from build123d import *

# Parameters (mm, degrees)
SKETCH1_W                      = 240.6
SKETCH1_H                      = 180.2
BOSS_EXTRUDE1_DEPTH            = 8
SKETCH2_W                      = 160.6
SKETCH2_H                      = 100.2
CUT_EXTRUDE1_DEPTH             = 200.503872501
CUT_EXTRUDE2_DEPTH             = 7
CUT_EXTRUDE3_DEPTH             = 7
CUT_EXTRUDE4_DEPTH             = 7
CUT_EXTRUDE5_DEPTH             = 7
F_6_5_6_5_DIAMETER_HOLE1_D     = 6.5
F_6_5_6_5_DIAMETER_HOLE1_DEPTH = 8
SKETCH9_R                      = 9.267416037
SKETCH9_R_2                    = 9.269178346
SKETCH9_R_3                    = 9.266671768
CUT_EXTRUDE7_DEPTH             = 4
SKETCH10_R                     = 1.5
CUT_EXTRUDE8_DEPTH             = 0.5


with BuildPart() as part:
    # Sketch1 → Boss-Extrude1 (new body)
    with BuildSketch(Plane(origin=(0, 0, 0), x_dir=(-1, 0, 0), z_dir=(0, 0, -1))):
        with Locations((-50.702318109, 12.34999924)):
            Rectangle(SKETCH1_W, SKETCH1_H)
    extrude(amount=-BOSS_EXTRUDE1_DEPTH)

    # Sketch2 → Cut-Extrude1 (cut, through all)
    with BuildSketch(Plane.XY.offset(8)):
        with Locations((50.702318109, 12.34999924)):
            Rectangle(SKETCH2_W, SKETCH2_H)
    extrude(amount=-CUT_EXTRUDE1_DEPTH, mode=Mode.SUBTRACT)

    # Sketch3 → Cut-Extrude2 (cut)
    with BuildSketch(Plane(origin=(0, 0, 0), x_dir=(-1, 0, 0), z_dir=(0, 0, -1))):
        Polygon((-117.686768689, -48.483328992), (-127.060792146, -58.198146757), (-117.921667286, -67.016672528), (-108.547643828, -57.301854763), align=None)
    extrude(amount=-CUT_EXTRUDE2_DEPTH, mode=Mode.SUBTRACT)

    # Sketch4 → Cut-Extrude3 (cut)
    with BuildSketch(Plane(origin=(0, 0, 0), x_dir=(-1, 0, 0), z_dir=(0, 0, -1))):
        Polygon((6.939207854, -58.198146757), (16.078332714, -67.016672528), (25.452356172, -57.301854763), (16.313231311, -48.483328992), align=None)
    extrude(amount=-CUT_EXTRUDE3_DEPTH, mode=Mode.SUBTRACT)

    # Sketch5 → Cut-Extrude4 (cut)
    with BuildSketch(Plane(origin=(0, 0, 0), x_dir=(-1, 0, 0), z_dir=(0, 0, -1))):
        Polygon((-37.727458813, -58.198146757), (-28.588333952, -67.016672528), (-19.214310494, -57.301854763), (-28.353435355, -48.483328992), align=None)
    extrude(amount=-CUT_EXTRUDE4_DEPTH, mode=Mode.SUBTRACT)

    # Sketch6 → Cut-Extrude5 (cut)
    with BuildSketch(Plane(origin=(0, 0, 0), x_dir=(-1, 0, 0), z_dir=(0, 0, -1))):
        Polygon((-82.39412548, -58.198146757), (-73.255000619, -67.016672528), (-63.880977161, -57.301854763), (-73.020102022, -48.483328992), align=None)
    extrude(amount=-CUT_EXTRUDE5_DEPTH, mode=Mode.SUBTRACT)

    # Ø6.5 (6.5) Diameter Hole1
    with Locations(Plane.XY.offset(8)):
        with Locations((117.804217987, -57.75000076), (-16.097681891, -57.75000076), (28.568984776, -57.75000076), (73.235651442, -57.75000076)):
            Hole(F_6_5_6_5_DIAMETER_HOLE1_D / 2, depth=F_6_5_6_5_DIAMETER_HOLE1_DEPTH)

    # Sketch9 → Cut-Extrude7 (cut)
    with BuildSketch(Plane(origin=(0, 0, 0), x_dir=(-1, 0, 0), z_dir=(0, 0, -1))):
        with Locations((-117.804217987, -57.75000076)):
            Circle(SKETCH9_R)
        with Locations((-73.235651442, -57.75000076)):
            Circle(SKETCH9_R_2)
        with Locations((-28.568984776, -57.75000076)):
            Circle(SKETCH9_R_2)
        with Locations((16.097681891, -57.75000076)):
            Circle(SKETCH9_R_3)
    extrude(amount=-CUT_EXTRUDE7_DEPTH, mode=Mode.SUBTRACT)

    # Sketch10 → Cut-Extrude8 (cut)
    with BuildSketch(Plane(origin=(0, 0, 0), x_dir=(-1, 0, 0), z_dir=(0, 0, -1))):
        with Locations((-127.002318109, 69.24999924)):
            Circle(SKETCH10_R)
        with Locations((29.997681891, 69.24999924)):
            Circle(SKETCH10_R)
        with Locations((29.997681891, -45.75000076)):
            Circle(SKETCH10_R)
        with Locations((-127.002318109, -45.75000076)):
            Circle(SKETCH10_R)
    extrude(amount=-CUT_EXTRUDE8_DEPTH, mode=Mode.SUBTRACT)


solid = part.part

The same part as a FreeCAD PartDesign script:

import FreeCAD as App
import Part
import Sketcher

V = App.Vector


def add_polygon(sketch, points):
    """Adds a closed chain of lines whose ends are joined by coincident constraints."""
    first, n = sketch.GeometryCount, len(points)
    for a, b in zip(points, points[1:] + points[:1]):
        sketch.addGeometry(Part.LineSegment(App.Vector(*a, 0), App.Vector(*b, 0)), False)
    for i in range(n):
        sketch.addConstraint(Sketcher.Constraint("Coincident", first + i, 2, first + (i + 1) % n, 1))

doc = App.newDocument("Part")
body = doc.addObject("PartDesign::Body", "Body")

sketch1 = body.newObject("Sketcher::SketchObject", "Sketch")
sketch1.AttachmentSupport = (doc.getObject("XY_Plane"), [""])
sketch1.MapMode = "FlatFace"
add_polygon(sketch1, [(171.002318, 102.449999), (171.002318, -77.750001), (-69.597682, -77.750001), (-69.597682, 102.449999)])
sketch1.addConstraint(Sketcher.Constraint("Vertical", 0))
sketch1.addConstraint(Sketcher.Constraint("Horizontal", 1))
sketch1.addConstraint(Sketcher.Constraint("Vertical", 2))
sketch1.addConstraint(Sketcher.Constraint("Horizontal", 3))
sketch1.addConstraint(Sketcher.Constraint("DistanceX", 1, 2, 1, 1, 240.6))
sketch1.addConstraint(Sketcher.Constraint("DistanceY", 0, 2, 0, 1, 180.2))
sketch1.addConstraint(Sketcher.Constraint("DistanceY", 0, 2, -1, 1, 77.750001))
sketch1.addConstraint(Sketcher.Constraint("DistanceX", -1, 1, 0, 2, 171.002318))
pad1 = body.newObject("PartDesign::Pad", "Pad")
pad1.Profile = sketch1
pad1.Length = 8

sketch2 = body.newObject("Sketcher::SketchObject", "Sketch001")
sketch2.AttachmentSupport = (doc.getObject("XY_Plane"), [""])
sketch2.MapMode = "FlatFace"
sketch2.AttachmentOffset = App.Placement(V(0, 0, 8), App.Rotation())
add_polygon(sketch2, [(-29.597682, 62.449999), (-29.597682, -37.750001), (131.002318, -37.750001), (131.002318, 62.449999)])
sketch2.addConstraint(Sketcher.Constraint("Vertical", 0))
sketch2.addConstraint(Sketcher.Constraint("Horizontal", 1))
sketch2.addConstraint(Sketcher.Constraint("Vertical", 2))
sketch2.addConstraint(Sketcher.Constraint("Horizontal", 3))
sketch2.addConstraint(Sketcher.Constraint("DistanceX", 1, 1, 1, 2, 160.6))
sketch2.addConstraint(Sketcher.Constraint("DistanceY", 0, 2, 0, 1, 100.2))
sketch2.addConstraint(Sketcher.Constraint("DistanceY", 0, 2, -1, 1, 37.750001))
sketch2.addConstraint(Sketcher.Constraint("DistanceX", 0, 2, -1, 1, 29.597682))
pocket1 = body.newObject("PartDesign::Pocket", "Pocket")
pocket1.Profile = sketch2
pocket1.Type = "ThroughAll"

sketch3 = body.newObject("Sketcher::SketchObject", "Sketch002")
sketch3.AttachmentSupport = (doc.getObject("XY_Plane"), [""])
sketch3.MapMode = "FlatFace"
add_polygon(sketch3, [(117.686769, -48.483329), (127.060792, -58.198147), (117.921667, -67.016673), (108.547644, -57.301855)])
sketch3.addConstraint(Sketcher.Constraint("Perpendicular", 0, 1))
sketch3.addConstraint(Sketcher.Constraint("Perpendicular", 1, 2))
sketch3.addConstraint(Sketcher.Constraint("Perpendicular", 2, 3))
sketch3.addConstraint(Sketcher.Constraint("Distance", 0, 13.5))
sketch3.addConstraint(Sketcher.Constraint("Distance", 1, 12.7))
sketch3.addConstraint(Sketcher.Constraint("DistanceX", 3, 2, 1, 2, 0.234899))
sketch3.addConstraint(Sketcher.Constraint("DistanceX", -1, 1, 3, 2, 117.686769))
sketch3.addConstraint(Sketcher.Constraint("DistanceY", 3, 2, -1, 1, 48.483329))
pocket2 = body.newObject("PartDesign::Pocket", "Pocket001")
pocket2.Profile = sketch3
pocket2.Length = 7
pocket2.Reversed = True

sketch4 = body.newObject("Sketcher::SketchObject", "Sketch003")
sketch4.AttachmentSupport = (doc.getObject("XY_Plane"), [""])
sketch4.MapMode = "FlatFace"
add_polygon(sketch4, [(-6.939208, -58.198147), (-16.078333, -67.016673), (-25.452356, -57.301855), (-16.313231, -48.483329)])
sketch4.addConstraint(Sketcher.Constraint("Perpendicular", 0, 1))
sketch4.addConstraint(Sketcher.Constraint("Perpendicular", 1, 2))
sketch4.addConstraint(Sketcher.Constraint("Perpendicular", 2, 3))
sketch4.addConstraint(Sketcher.Constraint("Distance", 0, 12.7))
sketch4.addConstraint(Sketcher.Constraint("Distance", 1, 13.5))
sketch4.addConstraint(Sketcher.Constraint("DistanceX", 2, 2, 0, 2, 0.234899))
sketch4.addConstraint(Sketcher.Constraint("DistanceX", 2, 2, -1, 1, 16.313231))
sketch4.addConstraint(Sketcher.Constraint("DistanceY", 2, 2, -1, 1, 48.483329))
pocket3 = body.newObject("PartDesign::Pocket", "Pocket002")
pocket3.Profile = sketch4
pocket3.Length = 7
pocket3.Reversed = True

sketch5 = body.newObject("Sketcher::SketchObject", "Sketch004")
sketch5.AttachmentSupport = (doc.getObject("XY_Plane"), [""])
sketch5.MapMode = "FlatFace"
add_polygon(sketch5, [(37.727459, -58.198147), (28.588334, -67.016673), (19.21431, -57.301855), (28.353435, -48.483329)])
sketch5.addConstraint(Sketcher.Constraint("Perpendicular", 0, 1))
sketch5.addConstraint(Sketcher.Constraint("Perpendicular", 1, 2))
sketch5.addConstraint(Sketcher.Constraint("Perpendicular", 2, 3))
sketch5.addConstraint(Sketcher.Constraint("Distance", 0, 12.7))
sketch5.addConstraint(Sketcher.Constraint("Distance", 1, 13.5))
sketch5.addConstraint(Sketcher.Constraint("DistanceX", 2, 2, 0, 2, 0.234899))
sketch5.addConstraint(Sketcher.Constraint("DistanceX", -1, 1, 1, 2, 19.21431))
sketch5.addConstraint(Sketcher.Constraint("DistanceY", 2, 2, -1, 1, 48.483329))
pocket4 = body.newObject("PartDesign::Pocket", "Pocket003")
pocket4.Profile = sketch5
pocket4.Length = 7
pocket4.Reversed = True

sketch6 = body.newObject("Sketcher::SketchObject", "Sketch005")
sketch6.AttachmentSupport = (doc.getObject("XY_Plane"), [""])
sketch6.MapMode = "FlatFace"
add_polygon(sketch6, [(82.394125, -58.198147), (73.255001, -67.016673), (63.880977, -57.301855), (73.020102, -48.483329)])
sketch6.addConstraint(Sketcher.Constraint("Perpendicular", 0, 1))
sketch6.addConstraint(Sketcher.Constraint("Perpendicular", 1, 2))
sketch6.addConstraint(Sketcher.Constraint("Perpendicular", 2, 3))
sketch6.addConstraint(Sketcher.Constraint("Distance", 0, 12.7))
sketch6.addConstraint(Sketcher.Constraint("Distance", 1, 13.5))
sketch6.addConstraint(Sketcher.Constraint("DistanceX", -1, 1, 0, 2, 73.255001))
sketch6.addConstraint(Sketcher.Constraint("DistanceX", 2, 2, 0, 2, 0.234899))
sketch6.addConstraint(Sketcher.Constraint("DistanceY", 2, 2, -1, 1, 48.483329))
pocket5 = body.newObject("PartDesign::Pocket", "Pocket004")
pocket5.Profile = sketch6
pocket5.Length = 7
pocket5.Reversed = True

sketch7 = body.newObject("Sketcher::SketchObject", "Sketch006")
sketch7.AttachmentSupport = (doc.getObject("XY_Plane"), [""])
sketch7.MapMode = "FlatFace"
sketch7.AttachmentOffset = App.Placement(V(0, 0, 8), App.Rotation())
sketch7.addGeometry(Part.Circle(V(117.804218, -57.750001, 0), V(0, 0, 1), 3.25), False)
sketch7.addGeometry(Part.Circle(V(-16.097682, -57.750001, 0), V(0, 0, 1), 3.25), False)
sketch7.addGeometry(Part.Circle(V(28.568985, -57.750001, 0), V(0, 0, 1), 3.25), False)
sketch7.addGeometry(Part.Circle(V(73.235651, -57.750001, 0), V(0, 0, 1), 3.25), False)
sketch7.addConstraint(Sketcher.Constraint("Equal", 0, 1))
sketch7.addConstraint(Sketcher.Constraint("Equal", 1, 2))
sketch7.addConstraint(Sketcher.Constraint("Equal", 2, 3))
sketch7.addConstraint(Sketcher.Constraint("Horizontal", 0, 3, 1, 3))
sketch7.addConstraint(Sketcher.Constraint("Horizontal", 1, 3, 2, 3))
sketch7.addConstraint(Sketcher.Constraint("Horizontal", 2, 3, 3, 3))
sketch7.addConstraint(Sketcher.Constraint("Diameter", 0, 6.5))
sketch7.addConstraint(Sketcher.Constraint("DistanceY", 0, 3, -1, 1, 57.750001))
sketch7.addConstraint(Sketcher.Constraint("DistanceX", 1, 3, 0, 3, 133.9019))
sketch7.addConstraint(Sketcher.Constraint("DistanceX", 1, 3, -1, 1, 16.097682))
sketch7.addConstraint(Sketcher.Constraint("DistanceX", -1, 1, 3, 3, 73.235651))
sketch7.addConstraint(Sketcher.Constraint("DistanceX", -1, 1, 2, 3, 28.568985))
doc.recompute()
hole = body.newObject("PartDesign::Hole", "Hole")
hole.Profile = sketch7
hole.ThreadType = "None"
hole.Diameter = 6.5
hole.DepthType = "Dimension"
hole.Depth = 8
hole.DrillPoint = "Flat"

sketch8 = body.newObject("Sketcher::SketchObject", "Sketch007")
sketch8.AttachmentSupport = (doc.getObject("XY_Plane"), [""])
sketch8.MapMode = "FlatFace"
sketch8.addGeometry(Part.Circle(V(117.804218, -57.750001, 0), V(0, 0, 1), 9.267416), False)
sketch8.addGeometry(Part.Circle(V(73.235651, -57.750001, 0), V(0, 0, 1), 9.269178), False)
sketch8.addGeometry(Part.Circle(V(28.568985, -57.750001, 0), V(0, 0, 1), 9.269178), False)
sketch8.addGeometry(Part.Circle(V(-16.097682, -57.750001, 0), V(0, 0, 1), 9.266672), False)
sketch8.addConstraint(Sketcher.Constraint("Equal", 1, 2))
sketch8.addConstraint(Sketcher.Constraint("Horizontal", 0, 3, 1, 3))
sketch8.addConstraint(Sketcher.Constraint("Horizontal", 1, 3, 2, 3))
sketch8.addConstraint(Sketcher.Constraint("Horizontal", 2, 3, 3, 3))
sketch8.addConstraint(Sketcher.Constraint("DistanceY", 0, 3, -1, 1, 57.750001))
sketch8.addConstraint(Sketcher.Constraint("Diameter", 0, 18.534832))
sketch8.addConstraint(Sketcher.Constraint("Diameter", 1, 18.538357))
sketch8.addConstraint(Sketcher.Constraint("Diameter", 3, 18.533344))
sketch8.addConstraint(Sketcher.Constraint("DistanceX", 3, 3, 0, 3, 133.9019))
sketch8.addConstraint(Sketcher.Constraint("DistanceX", -1, 1, 1, 3, 73.235651))
sketch8.addConstraint(Sketcher.Constraint("DistanceX", 3, 3, -1, 1, 16.097682))
sketch8.addConstraint(Sketcher.Constraint("DistanceX", -1, 1, 2, 3, 28.568985))
pocket6 = body.newObject("PartDesign::Pocket", "Pocket005")
pocket6.Profile = sketch8
pocket6.Length = 4
pocket6.Reversed = True

sketch9 = body.newObject("Sketcher::SketchObject", "Sketch008")
sketch9.AttachmentSupport = (doc.getObject("XY_Plane"), [""])
sketch9.MapMode = "FlatFace"
sketch9.addGeometry(Part.Circle(V(127.002318, 69.249999, 0), V(0, 0, 1), 1.5), False)
sketch9.addGeometry(Part.Circle(V(-29.997682, 69.249999, 0), V(0, 0, 1), 1.5), False)
sketch9.addGeometry(Part.Circle(V(-29.997682, -45.750001, 0), V(0, 0, 1), 1.5), False)
sketch9.addGeometry(Part.Circle(V(127.002318, -45.750001, 0), V(0, 0, 1), 1.5), False)
sketch9.addConstraint(Sketcher.Constraint("Equal", 0, 1))
sketch9.addConstraint(Sketcher.Constraint("Equal", 1, 2))
sketch9.addConstraint(Sketcher.Constraint("Equal", 2, 3))
sketch9.addConstraint(Sketcher.Constraint("Horizontal", 0, 3, 1, 3))
sketch9.addConstraint(Sketcher.Constraint("Horizontal", 2, 3, 3, 3))
sketch9.addConstraint(Sketcher.Constraint("Vertical", 1, 3, 2, 3))
sketch9.addConstraint(Sketcher.Constraint("Vertical", 0, 3, 3, 3))
sketch9.addConstraint(Sketcher.Constraint("Diameter", 0, 3.0))
sketch9.addConstraint(Sketcher.Constraint("DistanceX", 1, 3, 0, 3, 157.0))
sketch9.addConstraint(Sketcher.Constraint("DistanceY", 2, 3, 1, 3, 115.0))
sketch9.addConstraint(Sketcher.Constraint("DistanceY", -1, 1, 0, 3, 69.249999))
sketch9.addConstraint(Sketcher.Constraint("DistanceX", -1, 1, 0, 3, 127.002318))
pocket7 = body.newObject("PartDesign::Pocket", "Pocket006")
pocket7.Profile = sketch9
pocket7.Length = 0.5
pocket7.Reversed = True

doc.recompute()
